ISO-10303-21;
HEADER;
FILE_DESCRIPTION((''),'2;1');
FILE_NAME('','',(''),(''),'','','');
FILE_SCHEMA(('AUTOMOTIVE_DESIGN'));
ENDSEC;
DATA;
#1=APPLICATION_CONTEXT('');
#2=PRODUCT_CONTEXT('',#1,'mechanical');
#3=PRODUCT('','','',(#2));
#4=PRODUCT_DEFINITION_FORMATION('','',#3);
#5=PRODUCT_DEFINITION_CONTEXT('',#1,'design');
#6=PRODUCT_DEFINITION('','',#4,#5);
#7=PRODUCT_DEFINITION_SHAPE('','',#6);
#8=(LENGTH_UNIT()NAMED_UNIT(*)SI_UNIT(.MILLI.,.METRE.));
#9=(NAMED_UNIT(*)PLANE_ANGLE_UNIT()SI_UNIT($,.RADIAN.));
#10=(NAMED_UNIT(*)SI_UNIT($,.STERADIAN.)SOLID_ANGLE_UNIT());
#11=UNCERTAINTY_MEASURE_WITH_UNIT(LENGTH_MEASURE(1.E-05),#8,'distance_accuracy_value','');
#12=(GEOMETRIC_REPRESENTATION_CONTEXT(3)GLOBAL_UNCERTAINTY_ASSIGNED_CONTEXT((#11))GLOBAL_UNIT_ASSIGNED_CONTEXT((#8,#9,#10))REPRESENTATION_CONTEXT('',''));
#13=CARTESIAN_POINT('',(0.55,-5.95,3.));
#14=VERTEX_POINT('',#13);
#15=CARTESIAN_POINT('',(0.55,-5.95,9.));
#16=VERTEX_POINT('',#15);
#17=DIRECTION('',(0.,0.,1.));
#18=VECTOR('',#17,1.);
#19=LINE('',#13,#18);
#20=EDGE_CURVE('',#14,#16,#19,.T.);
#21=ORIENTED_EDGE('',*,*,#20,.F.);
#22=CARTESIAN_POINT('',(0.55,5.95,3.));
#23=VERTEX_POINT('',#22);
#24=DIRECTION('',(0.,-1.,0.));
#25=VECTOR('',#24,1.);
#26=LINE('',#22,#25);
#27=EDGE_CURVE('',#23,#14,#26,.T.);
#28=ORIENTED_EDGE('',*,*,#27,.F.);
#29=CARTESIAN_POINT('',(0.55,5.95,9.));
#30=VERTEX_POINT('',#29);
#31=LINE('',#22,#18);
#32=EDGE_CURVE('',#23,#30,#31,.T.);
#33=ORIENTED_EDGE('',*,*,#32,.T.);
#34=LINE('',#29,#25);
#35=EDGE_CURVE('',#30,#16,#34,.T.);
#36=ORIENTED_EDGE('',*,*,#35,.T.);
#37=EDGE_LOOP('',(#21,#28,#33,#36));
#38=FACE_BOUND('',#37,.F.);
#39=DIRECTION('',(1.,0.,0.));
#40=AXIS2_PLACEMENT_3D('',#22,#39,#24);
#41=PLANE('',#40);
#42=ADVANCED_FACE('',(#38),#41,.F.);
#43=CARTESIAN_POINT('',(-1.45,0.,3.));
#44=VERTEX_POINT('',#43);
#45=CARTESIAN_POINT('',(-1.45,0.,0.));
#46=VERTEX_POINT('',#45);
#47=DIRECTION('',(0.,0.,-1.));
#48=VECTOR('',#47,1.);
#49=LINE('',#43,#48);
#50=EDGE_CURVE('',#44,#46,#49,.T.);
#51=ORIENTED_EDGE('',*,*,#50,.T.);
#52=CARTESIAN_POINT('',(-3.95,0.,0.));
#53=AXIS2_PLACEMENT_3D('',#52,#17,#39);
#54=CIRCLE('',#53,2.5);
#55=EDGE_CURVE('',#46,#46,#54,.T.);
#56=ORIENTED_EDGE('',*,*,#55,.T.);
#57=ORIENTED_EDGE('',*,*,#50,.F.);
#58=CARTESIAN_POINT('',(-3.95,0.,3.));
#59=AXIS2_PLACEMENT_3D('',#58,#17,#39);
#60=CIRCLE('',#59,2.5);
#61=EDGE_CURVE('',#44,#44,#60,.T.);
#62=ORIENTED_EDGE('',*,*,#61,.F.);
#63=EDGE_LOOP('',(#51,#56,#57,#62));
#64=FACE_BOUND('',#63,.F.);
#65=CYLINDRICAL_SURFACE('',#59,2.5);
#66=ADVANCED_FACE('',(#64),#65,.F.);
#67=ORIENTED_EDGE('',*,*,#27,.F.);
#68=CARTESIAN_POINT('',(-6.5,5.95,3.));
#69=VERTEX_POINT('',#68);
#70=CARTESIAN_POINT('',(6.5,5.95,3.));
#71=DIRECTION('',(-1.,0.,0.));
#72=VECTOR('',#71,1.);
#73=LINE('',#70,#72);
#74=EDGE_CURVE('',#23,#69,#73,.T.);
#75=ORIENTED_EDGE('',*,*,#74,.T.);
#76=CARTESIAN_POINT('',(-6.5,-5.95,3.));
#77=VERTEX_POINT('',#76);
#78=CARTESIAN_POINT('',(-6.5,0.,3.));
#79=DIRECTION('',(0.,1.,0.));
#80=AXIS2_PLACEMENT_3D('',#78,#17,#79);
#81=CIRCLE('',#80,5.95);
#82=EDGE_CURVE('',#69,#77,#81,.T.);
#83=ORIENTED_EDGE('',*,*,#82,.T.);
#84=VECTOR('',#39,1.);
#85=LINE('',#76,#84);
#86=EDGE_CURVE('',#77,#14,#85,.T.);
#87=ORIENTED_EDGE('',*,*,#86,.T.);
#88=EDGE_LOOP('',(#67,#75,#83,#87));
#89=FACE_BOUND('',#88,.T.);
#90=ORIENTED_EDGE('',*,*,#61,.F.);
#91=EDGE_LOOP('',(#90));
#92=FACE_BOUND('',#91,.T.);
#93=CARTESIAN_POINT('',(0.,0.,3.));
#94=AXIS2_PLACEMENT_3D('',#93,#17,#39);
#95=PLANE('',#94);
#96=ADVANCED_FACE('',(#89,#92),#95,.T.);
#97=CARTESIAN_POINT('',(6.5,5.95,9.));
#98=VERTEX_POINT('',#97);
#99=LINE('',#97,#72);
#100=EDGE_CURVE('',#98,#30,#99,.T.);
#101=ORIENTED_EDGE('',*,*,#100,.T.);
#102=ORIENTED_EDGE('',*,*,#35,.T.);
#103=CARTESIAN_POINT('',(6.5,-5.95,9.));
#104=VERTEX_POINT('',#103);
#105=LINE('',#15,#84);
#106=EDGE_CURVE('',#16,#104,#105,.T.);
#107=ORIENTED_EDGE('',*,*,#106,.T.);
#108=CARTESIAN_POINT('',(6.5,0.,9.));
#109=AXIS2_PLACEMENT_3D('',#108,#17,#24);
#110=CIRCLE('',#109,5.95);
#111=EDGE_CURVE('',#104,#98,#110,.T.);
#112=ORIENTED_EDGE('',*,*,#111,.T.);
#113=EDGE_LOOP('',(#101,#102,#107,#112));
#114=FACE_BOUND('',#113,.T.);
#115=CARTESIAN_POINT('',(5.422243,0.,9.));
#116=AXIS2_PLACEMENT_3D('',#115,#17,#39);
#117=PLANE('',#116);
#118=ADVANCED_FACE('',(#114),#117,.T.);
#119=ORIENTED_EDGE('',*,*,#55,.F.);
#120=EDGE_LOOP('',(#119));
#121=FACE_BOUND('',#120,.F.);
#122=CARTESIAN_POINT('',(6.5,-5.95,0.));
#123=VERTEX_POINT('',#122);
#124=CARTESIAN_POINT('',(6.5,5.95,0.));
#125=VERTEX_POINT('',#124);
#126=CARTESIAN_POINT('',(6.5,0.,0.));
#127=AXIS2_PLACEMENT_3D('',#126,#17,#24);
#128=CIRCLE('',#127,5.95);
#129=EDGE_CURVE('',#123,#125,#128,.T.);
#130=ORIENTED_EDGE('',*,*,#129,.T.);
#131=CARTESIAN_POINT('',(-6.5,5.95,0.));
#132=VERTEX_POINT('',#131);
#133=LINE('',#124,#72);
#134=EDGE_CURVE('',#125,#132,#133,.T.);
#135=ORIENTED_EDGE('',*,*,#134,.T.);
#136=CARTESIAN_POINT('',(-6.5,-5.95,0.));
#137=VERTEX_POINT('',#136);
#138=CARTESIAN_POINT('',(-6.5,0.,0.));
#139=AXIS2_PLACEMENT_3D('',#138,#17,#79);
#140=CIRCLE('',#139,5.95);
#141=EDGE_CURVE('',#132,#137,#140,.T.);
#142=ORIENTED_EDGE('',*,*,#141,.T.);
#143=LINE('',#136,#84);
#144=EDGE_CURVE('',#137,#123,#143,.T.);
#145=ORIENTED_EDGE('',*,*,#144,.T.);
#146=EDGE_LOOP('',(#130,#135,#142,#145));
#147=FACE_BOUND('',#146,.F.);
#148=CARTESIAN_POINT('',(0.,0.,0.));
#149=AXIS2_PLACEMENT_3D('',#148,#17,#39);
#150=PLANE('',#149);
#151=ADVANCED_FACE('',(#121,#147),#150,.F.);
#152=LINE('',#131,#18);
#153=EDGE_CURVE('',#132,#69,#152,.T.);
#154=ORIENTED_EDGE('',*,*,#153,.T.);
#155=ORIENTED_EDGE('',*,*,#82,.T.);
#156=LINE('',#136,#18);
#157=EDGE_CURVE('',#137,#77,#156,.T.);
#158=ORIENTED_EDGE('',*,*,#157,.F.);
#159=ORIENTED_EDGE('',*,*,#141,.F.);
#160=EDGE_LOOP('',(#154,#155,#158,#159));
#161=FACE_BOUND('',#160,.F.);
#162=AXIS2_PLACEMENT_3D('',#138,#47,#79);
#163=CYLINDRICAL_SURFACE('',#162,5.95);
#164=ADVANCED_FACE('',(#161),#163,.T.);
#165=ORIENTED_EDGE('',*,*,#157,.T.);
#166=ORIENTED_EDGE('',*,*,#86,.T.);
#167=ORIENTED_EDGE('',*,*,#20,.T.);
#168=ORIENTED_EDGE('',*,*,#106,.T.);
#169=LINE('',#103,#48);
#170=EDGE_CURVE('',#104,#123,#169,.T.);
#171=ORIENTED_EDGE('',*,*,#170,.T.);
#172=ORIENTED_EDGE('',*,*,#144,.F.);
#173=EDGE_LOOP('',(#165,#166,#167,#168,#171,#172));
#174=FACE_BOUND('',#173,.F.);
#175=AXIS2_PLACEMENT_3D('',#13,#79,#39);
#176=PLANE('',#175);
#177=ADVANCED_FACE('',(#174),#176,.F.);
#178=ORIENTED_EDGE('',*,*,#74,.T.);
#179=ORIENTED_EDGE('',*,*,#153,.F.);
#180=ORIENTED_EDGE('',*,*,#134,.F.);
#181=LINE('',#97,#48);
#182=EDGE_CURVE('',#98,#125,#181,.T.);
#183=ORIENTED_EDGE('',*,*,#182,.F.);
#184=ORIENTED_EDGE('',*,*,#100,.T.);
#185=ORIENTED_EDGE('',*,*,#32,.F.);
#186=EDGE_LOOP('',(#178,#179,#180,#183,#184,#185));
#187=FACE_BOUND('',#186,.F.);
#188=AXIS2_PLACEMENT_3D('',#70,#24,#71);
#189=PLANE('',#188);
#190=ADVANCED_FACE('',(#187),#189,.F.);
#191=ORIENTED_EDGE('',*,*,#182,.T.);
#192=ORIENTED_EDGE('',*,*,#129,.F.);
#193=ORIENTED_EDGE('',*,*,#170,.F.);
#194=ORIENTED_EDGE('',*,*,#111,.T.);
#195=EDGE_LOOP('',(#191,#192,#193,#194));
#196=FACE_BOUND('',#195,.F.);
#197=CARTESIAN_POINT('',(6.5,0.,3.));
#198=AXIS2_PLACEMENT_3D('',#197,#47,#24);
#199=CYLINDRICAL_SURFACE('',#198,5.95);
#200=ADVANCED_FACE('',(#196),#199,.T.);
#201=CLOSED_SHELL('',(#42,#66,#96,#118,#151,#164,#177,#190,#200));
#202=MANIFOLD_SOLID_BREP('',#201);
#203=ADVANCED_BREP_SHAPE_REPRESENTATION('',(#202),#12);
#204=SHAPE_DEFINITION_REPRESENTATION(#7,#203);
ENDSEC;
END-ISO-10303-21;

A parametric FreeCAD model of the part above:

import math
import FreeCAD as App
import Part
import Sketcher
from FreeCAD import Vector

doc = App.newDocument("Part")
params = doc.addObject("Spreadsheet::Sheet", "Params")
for row, (alias, value) in enumerate([
    ("sketch1_width", "13 mm"),
    ("sketch1_radius", "5.95 mm"),
    ("pad1_length", "3 mm"),
    ("sketch2_radius", "5.95 mm"),
    ("sketch2_width", "5.95 mm"),
    ("pad2_length", "6 mm"),
    ("sketch3_diameter", "5 mm"),
    ("pocket1_length", "3 mm"),
], start=1):
    params.set(f"A{row}", alias)
    params.set(f"B{row}", "=" + value)
    params.setAlias(f"B{row}", alias)

body = doc.addObject("PartDesign::Body", "Body")

# Sketch on XY plane
sketch1 = body.newObject("Sketcher::SketchObject", "Sketch")
sketch1.AttachmentSupport = (doc.getObject("XY_Plane"), [""])
sketch1.MapMode = "FlatFace"
sketch1.addGeometry([
    Part.ArcOfCircle(Part.Circle(Vector(-6.5, 0, 0), Vector(0, 0, 1), 5.95), math.radians(90), math.radians(270)),
    Part.LineSegment(Vector(-6.5, -5.95, 0), Vector(6.5, -5.95, 0)),
    Part.ArcOfCircle(Part.Circle(Vector(6.5, 0, 0), Vector(0, 0, 1), 5.95), math.radians(-90), math.radians(90)),
    Part.LineSegment(Vector(6.5, 5.95, 0), Vector(-6.5, 5.95, 0)),
], False)
sketch1.addConstraint([
    Sketcher.Constraint("Tangent", 0, 2, 1, 1),
    Sketcher.Constraint("Tangent", 1, 2, 2, 1),
    Sketcher.Constraint("Tangent", 2, 2, 3, 1),
    Sketcher.Constraint("Tangent", 3, 2, 0, 1),
    Sketcher.Constraint("Horizontal", 1),
    Sketcher.Constraint("Horizontal", 3),
    Sketcher.Constraint("Symmetric", 0, 3, 2, 3, -1, 1),
    Sketcher.Constraint("DistanceX", 1, 1, 1, 2, 13.0),
    Sketcher.Constraint("Radius", 0, 5.95),
])
sketch1.setExpression("Constraints[7]", "Params.sketch1_width")
sketch1.setExpression("Constraints[8]", "Params.sketch1_radius")
pad1 = body.newObject("PartDesign::Pad", "Pad")
pad1.Profile = sketch1
pad1.setExpression("Length", "Params.pad1_length")

# Sketch on XY plane
sketch2 = body.newObject("Sketcher::SketchObject", "Sketch001")
sketch2.AttachmentSupport = (doc.getObject("XY_Plane"), [""])
sketch2.MapMode = "FlatFace"
sketch2.AttachmentOffset = App.Placement(Vector(0, 0, 3), App.Rotation())
sketch2.addGeometry([
    Part.LineSegment(Vector(6.5, 5.95, 0), Vector(0.55, 5.95, 0)),
    Part.LineSegment(Vector(0.55, 5.95, 0), Vector(0.55, -5.95, 0)),
    Part.LineSegment(Vector(0.55, -5.95, 0), Vector(6.5, -5.95, 0)),
    Part.ArcOfCircle(Part.Circle(Vector(6.5, 0, 0), Vector(0, 0, 1), 5.95), math.radians(-90), math.radians(90)),
], False)
sketch2.addConstraint([
    Sketcher.Constraint("Coincident", 0, 2, 1, 1),
    Sketcher.Constraint("Coincident", 1, 2, 2, 1),
    Sketcher.Constraint("Tangent", 2, 2, 3, 1),
    Sketcher.Constraint("Tangent", 3, 2, 0, 1),
    Sketcher.Constraint("Horizontal", 0),
    Sketcher.Constraint("Vertical", 1),
    Sketcher.Constraint("Horizontal", 2),
    Sketcher.Constraint("PointOnObject", 3, 3, -1),
    Sketcher.Constraint("Radius", 3, 5.95),
    Sketcher.Constraint("DistanceX", 0, 2, 0, 1, 5.95),
    Sketcher.Constraint("DistanceX", -1, 1, 3, 3, 6.5),
])
sketch2.setExpression("Constraints[8]", "Params.sketch2_radius")
sketch2.setExpression("Constraints[9]", "Params.sketch2_width")
pad2 = body.newObject("PartDesign::Pad", "Pad001")
pad2.Profile = sketch2
pad2.setExpression("Length", "Params.pad2_length")

# Sketch on XY plane
sketch3 = body.newObject("Sketcher::SketchObject", "Sketch002")
sketch3.AttachmentSupport = (doc.getObject("XY_Plane"), [""])
sketch3.MapMode = "FlatFace"
sketch3.AttachmentOffset = App.Placement(Vector(0, 0, 3), App.Rotation())
sketch3.addGeometry(Part.Circle(Vector(-3.95, 0, 0), Vector(0, 0, 1), 2.5), False)
sketch3.addConstraint([
    Sketcher.Constraint("PointOnObject", 0, 3, -1),
    Sketcher.Constraint("Diameter", 0, 5.0),
    Sketcher.Constraint("DistanceX", 0, 3, -1, 1, 3.95),
])
sketch3.setExpression("Constraints[1]", "Params.sketch3_diameter")
pocket1 = body.newObject("PartDesign::Pocket", "Pocket")
pocket1.Profile = sketch3
pocket1.setExpression("Length", "Params.pocket1_length")

doc.recompute()
